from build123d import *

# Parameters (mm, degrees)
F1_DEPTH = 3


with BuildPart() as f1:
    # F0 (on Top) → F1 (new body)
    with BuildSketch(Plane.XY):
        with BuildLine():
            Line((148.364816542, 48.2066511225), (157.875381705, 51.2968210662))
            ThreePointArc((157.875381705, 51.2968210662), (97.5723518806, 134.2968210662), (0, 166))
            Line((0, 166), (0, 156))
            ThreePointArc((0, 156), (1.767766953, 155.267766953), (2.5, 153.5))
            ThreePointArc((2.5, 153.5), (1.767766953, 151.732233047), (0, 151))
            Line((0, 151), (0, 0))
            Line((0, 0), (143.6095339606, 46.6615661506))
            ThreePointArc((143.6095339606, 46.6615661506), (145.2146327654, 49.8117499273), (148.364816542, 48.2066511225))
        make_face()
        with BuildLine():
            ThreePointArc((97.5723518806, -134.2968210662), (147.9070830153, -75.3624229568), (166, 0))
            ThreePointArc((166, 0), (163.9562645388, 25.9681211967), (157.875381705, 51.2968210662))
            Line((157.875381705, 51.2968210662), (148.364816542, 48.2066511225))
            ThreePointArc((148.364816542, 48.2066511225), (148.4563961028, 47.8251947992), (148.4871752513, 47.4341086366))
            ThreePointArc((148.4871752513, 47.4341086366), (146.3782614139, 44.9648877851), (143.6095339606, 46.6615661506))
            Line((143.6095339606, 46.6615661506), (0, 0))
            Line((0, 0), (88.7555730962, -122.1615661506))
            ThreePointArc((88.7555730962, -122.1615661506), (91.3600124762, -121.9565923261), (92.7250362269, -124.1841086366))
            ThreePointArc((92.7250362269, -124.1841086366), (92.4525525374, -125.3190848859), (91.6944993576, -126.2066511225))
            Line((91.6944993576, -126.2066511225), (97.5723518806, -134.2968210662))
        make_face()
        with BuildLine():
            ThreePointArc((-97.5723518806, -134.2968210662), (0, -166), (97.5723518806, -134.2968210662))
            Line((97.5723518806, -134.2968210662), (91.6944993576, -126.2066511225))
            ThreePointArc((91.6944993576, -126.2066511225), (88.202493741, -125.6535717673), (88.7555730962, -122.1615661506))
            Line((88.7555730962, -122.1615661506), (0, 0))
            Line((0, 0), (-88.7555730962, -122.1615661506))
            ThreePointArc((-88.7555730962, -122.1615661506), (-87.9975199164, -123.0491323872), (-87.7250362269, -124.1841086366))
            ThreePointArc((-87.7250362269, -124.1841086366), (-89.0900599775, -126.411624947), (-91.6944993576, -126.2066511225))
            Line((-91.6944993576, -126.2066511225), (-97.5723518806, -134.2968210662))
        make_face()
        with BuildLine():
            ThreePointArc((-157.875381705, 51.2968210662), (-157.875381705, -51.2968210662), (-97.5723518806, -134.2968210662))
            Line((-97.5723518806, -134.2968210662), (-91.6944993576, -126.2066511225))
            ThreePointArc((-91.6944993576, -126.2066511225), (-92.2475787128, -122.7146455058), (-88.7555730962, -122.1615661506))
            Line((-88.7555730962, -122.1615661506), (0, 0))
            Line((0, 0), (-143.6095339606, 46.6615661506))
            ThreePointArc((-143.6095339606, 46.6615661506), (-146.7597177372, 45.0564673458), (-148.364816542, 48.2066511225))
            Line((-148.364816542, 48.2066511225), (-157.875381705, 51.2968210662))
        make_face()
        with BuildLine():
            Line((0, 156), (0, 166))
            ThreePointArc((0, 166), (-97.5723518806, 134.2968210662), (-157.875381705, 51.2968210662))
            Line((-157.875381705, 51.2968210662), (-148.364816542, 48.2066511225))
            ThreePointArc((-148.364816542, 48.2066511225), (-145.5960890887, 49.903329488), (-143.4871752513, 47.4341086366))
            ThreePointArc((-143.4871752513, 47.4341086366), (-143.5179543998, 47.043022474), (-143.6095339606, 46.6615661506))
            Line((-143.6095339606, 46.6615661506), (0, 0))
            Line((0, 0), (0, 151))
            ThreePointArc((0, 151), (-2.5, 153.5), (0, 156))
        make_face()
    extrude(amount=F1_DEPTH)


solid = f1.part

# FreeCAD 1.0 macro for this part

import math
import FreeCAD as App
import Part
import Sketcher

doc = App.newDocument("Part")
body = doc.addObject("PartDesign::Body", "Body")

# Sketch on XY plane
sketch1 = doc.addObject("Sketcher::SketchObject", "Sketch")
body.addObject(sketch1)
sketch1.AttachmentSupport = (doc.XY_Plane, [""])
sketch1.MapMode = "FlatFace"
sketch1.addGeometry(Part.ArcOfCircle(Part.Circle(App.Vector(0, 0, 0), App.Vector(0, 0, 1), 166), math.radians(18), math.radians(306)), False)
sketch1.addGeometry(Part.ArcOfCircle(Part.Circle(App.Vector(0, 0, 0), App.Vector(0, 0, 1), 166), math.radians(-54), math.radians(0)), False)
sketch1.addGeometry(Part.ArcOfCircle(Part.Circle(App.Vector(0, 0, 0), App.Vector(0, 0, 1), 166), math.radians(0), math.radians(18)), False)
sketch1.addGeometry(Part.ArcOfCircle(Part.Circle(App.Vector(0, 153.5, 0), App.Vector(0, 0, 1), 2.5), math.radians(0), math.radians(90)), False)
sketch1.addGeometry(Part.ArcOfCircle(Part.Circle(App.Vector(0, 153.5, 0), App.Vector(0, 0, 1), 2.5), math.radians(-90), math.radians(0)), False)
sketch1.addGeometry(Part.ArcOfCircle(Part.Circle(App.Vector(0, 153.5, 0), App.Vector(0, 0, 1), 2.5), math.radians(90), math.radians(270)), False)
sketch1.addGeometry(Part.ArcOfCircle(Part.Circle(App.Vector(-145.987175, 47.434109, 0), App.Vector(0, 0, 1), 2.5), math.radians(162), math.radians(342)), False)
sketch1.addGeometry(Part.ArcOfCircle(Part.Circle(App.Vector(-145.987175, 47.434109, 0), App.Vector(0, 0, 1), 2.5), math.radians(0), math.radians(162)), False)
sketch1.addGeometry(Part.ArcOfCircle(Part.Circle(App.Vector(-145.987175, 47.434109, 0), App.Vector(0, 0, 1), 2.5), math.radians(-18), math.radians(0)), False)
sketch1.addGeometry(Part.ArcOfCircle(Part.Circle(App.Vector(-90.225036, -124.184109, 0), App.Vector(0, 0, 1), 2.5), math.radians(0), math.radians(54)), False)
sketch1.addGeometry(Part.ArcOfCircle(Part.Circle(App.Vector(-90.225036, -124.184109, 0), App.Vector(0, 0, 1), 2.5), math.radians(-126), math.radians(0)), False)
sketch1.addGeometry(Part.ArcOfCircle(Part.Circle(App.Vector(-90.225036, -124.184109, 0), App.Vector(0, 0, 1), 2.5), math.radians(54), math.radians(234)), False)
sketch1.addGeometry(Part.ArcOfCircle(Part.Circle(App.Vector(90.225036, -124.184109, 0), App.Vector(0, 0, 1), 2.5), math.radians(0), math.radians(126)), False)
sketch1.addGeometry(Part.ArcOfCircle(Part.Circle(App.Vector(90.225036, -124.184109, 0), App.Vector(0, 0, 1), 2.5), math.radians(-54), math.radians(0)), False)
sketch1.addGeometry(Part.ArcOfCircle(Part.Circle(App.Vector(90.225036, -124.184109, 0), App.Vector(0, 0, 1), 2.5), math.radians(126), math.radians(306)), False)
sketch1.addGeometry(Part.ArcOfCircle(Part.Circle(App.Vector(145.987175, 47.434109, 0), App.Vector(0, 0, 1), 2.5), math.radians(18), math.radians(198)), False)
sketch1.addGeometry(Part.ArcOfCircle(Part.Circle(App.Vector(145.987175, 47.434109, 0), App.Vector(0, 0, 1), 2.5), math.radians(0), math.radians(18)), False)
sketch1.addGeometry(Part.ArcOfCircle(Part.Circle(App.Vector(145.987175, 47.434109, 0), App.Vector(0, 0, 1), 2.5), math.radians(-162), math.radians(0)), False)
sketch1.addConstraint(Sketcher.Constraint("Tangent", 0, 2, 1, 1))
sketch1.addConstraint(Sketcher.Constraint("Tangent", 1, 2, 2, 1))
sketch1.addConstraint(Sketcher.Constraint("Coincident", 2, 2, 0, 1))
sketch1.addConstraint(Sketcher.Constraint("Tangent", 3, 1, 4, 2))
sketch1.addConstraint(Sketcher.Constraint("Tangent", 4, 1, 5, 2))
sketch1.addConstraint(Sketcher.Constraint("Tangent", 5, 1, 3, 2))
sketch1.addConstraint(Sketcher.Constraint("Tangent", 6, 1, 7, 2))
sketch1.addConstraint(Sketcher.Constraint("Tangent", 7, 1, 8, 2))
sketch1.addConstraint(Sketcher.Constraint("Tangent", 8, 1, 6, 2))
sketch1.addConstraint(Sketcher.Constraint("Tangent", 9, 1, 10, 2))
sketch1.addConstraint(Sketcher.Constraint("Tangent", 10, 1, 11, 2))
sketch1.addConstraint(Sketcher.Constraint("Tangent", 11, 1, 9, 2))
sketch1.addConstraint(Sketcher.Constraint("Tangent", 12, 1, 13, 2))
sketch1.addConstraint(Sketcher.Constraint("Tangent", 13, 1, 14, 2))
sketch1.addConstraint(Sketcher.Constraint("Tangent", 14, 1, 12, 2))
sketch1.addConstraint(Sketcher.Constraint("Tangent", 15, 1, 16, 2))
sketch1.addConstraint(Sketcher.Constraint("Tangent", 16, 1, 17, 2))
sketch1.addConstraint(Sketcher.Constraint("Tangent", 17, 1, 15, 2))
sketch1.addConstraint(Sketcher.Constraint("Coincident", 0, 3, -1, 1))
sketch1.addConstraint(Sketcher.Constraint("Equal", 0, 1))
sketch1.addConstraint(Sketcher.Constraint("Equal", 5, 6))
sketch1.addConstraint(Sketcher.Constraint("Equal", 8, 9))
sketch1.addConstraint(Sketcher.Constraint("Equal", 11, 12))
sketch1.addConstraint(Sketcher.Constraint("Equal", 14, 15))
sketch1.addConstraint(Sketcher.Constraint("Symmetric", 9, 3, 12, 3, -2))
sketch1.addConstraint(Sketcher.Constraint("Symmetric", 6, 3, 15, 3, -2))
sketch1.addConstraint(Sketcher.Constraint("PointOnObject", 3, 3, -2))
sketch1.addConstraint(Sketcher.Constraint("PointOnObject", 1, 2, -1))
sketch1.addConstraint(Sketcher.Constraint("PointOnObject", 4, 1, -2))
sketch1.addConstraint(Sketcher.Constraint("PointOnObject", 5, 1, -2))
sketch1.addConstraint(Sketcher.Constraint("Horizontal", 5, 3, 3, 1))
sketch1.addConstraint(Sketcher.Constraint("Horizontal", 17, 3, 7, 1))
sketch1.addConstraint(Sketcher.Constraint("Horizontal", 14, 3, 9, 1))
sketch1.addConstraint(Sketcher.Constraint("Horizontal", 9, 1, 12, 1))
sketch1.addConstraint(Sketcher.Constraint("Horizontal", 10, 1, 13, 1))
sketch1.addConstraint(Sketcher.Constraint("Horizontal", 11, 1, 14, 1))
sketch1.addConstraint(Sketcher.Constraint("Horizontal", 6, 1, 15, 1))
sketch1.addConstraint(Sketcher.Constraint("Horizontal", 7, 1, 16, 1))
sketch1.addConstraint(Sketcher.Constraint("Horizontal", 8, 1, 17, 1))
sketch1.addConstraint(Sketcher.Constraint("Radius", 0, 166.0))
sketch1.addConstraint(Sketcher.Constraint("Radius", 3, 2.5))
sketch1.addConstraint(Sketcher.Constraint("DistanceY", -1, 1, 4, 1, 151.0))
sketch1.addConstraint(Sketcher.Constraint("DistanceX", 10, 1, -1, 1, 91.694499))
sketch1.addConstraint(Sketcher.Constraint("DistanceY", -1, 1, 6, 3, 47.434109))
sketch1.addConstraint(Sketcher.Constraint("DistanceY", 9, 3, -1, 1, 124.184109))
sketch1.addConstraint(Sketcher.Constraint("DistanceX", -1, 1, 0, 2, 97.572352))
sketch1.addConstraint(Sketcher.Constraint("DistanceX", -1, 1, 2, 2, 157.875382))
sketch1.addConstraint(Sketcher.Constraint("DistanceY", -1, 1, 6, 1, 48.206651))
sketch1.addConstraint(Sketcher.Constraint("DistanceY", 10, 1, -1, 1, 126.206651))
sketch1.addConstraint(Sketcher.Constraint("DistanceX", 8, 3, 9, 3, 55.762139))
sketch1.addConstraint(Sketcher.Constraint("DistanceX", 8, 1, 7, 1, 0.122359))
sketch1.addConstraint(Sketcher.Constraint("DistanceX", 11, 1, -1, 1, 88.755573))
pad1 = doc.addObject("PartDesign::Pad", "Pad")
body.addObject(pad1)
pad1.Profile = sketch1
pad1.Length = 3

doc.recompute()
